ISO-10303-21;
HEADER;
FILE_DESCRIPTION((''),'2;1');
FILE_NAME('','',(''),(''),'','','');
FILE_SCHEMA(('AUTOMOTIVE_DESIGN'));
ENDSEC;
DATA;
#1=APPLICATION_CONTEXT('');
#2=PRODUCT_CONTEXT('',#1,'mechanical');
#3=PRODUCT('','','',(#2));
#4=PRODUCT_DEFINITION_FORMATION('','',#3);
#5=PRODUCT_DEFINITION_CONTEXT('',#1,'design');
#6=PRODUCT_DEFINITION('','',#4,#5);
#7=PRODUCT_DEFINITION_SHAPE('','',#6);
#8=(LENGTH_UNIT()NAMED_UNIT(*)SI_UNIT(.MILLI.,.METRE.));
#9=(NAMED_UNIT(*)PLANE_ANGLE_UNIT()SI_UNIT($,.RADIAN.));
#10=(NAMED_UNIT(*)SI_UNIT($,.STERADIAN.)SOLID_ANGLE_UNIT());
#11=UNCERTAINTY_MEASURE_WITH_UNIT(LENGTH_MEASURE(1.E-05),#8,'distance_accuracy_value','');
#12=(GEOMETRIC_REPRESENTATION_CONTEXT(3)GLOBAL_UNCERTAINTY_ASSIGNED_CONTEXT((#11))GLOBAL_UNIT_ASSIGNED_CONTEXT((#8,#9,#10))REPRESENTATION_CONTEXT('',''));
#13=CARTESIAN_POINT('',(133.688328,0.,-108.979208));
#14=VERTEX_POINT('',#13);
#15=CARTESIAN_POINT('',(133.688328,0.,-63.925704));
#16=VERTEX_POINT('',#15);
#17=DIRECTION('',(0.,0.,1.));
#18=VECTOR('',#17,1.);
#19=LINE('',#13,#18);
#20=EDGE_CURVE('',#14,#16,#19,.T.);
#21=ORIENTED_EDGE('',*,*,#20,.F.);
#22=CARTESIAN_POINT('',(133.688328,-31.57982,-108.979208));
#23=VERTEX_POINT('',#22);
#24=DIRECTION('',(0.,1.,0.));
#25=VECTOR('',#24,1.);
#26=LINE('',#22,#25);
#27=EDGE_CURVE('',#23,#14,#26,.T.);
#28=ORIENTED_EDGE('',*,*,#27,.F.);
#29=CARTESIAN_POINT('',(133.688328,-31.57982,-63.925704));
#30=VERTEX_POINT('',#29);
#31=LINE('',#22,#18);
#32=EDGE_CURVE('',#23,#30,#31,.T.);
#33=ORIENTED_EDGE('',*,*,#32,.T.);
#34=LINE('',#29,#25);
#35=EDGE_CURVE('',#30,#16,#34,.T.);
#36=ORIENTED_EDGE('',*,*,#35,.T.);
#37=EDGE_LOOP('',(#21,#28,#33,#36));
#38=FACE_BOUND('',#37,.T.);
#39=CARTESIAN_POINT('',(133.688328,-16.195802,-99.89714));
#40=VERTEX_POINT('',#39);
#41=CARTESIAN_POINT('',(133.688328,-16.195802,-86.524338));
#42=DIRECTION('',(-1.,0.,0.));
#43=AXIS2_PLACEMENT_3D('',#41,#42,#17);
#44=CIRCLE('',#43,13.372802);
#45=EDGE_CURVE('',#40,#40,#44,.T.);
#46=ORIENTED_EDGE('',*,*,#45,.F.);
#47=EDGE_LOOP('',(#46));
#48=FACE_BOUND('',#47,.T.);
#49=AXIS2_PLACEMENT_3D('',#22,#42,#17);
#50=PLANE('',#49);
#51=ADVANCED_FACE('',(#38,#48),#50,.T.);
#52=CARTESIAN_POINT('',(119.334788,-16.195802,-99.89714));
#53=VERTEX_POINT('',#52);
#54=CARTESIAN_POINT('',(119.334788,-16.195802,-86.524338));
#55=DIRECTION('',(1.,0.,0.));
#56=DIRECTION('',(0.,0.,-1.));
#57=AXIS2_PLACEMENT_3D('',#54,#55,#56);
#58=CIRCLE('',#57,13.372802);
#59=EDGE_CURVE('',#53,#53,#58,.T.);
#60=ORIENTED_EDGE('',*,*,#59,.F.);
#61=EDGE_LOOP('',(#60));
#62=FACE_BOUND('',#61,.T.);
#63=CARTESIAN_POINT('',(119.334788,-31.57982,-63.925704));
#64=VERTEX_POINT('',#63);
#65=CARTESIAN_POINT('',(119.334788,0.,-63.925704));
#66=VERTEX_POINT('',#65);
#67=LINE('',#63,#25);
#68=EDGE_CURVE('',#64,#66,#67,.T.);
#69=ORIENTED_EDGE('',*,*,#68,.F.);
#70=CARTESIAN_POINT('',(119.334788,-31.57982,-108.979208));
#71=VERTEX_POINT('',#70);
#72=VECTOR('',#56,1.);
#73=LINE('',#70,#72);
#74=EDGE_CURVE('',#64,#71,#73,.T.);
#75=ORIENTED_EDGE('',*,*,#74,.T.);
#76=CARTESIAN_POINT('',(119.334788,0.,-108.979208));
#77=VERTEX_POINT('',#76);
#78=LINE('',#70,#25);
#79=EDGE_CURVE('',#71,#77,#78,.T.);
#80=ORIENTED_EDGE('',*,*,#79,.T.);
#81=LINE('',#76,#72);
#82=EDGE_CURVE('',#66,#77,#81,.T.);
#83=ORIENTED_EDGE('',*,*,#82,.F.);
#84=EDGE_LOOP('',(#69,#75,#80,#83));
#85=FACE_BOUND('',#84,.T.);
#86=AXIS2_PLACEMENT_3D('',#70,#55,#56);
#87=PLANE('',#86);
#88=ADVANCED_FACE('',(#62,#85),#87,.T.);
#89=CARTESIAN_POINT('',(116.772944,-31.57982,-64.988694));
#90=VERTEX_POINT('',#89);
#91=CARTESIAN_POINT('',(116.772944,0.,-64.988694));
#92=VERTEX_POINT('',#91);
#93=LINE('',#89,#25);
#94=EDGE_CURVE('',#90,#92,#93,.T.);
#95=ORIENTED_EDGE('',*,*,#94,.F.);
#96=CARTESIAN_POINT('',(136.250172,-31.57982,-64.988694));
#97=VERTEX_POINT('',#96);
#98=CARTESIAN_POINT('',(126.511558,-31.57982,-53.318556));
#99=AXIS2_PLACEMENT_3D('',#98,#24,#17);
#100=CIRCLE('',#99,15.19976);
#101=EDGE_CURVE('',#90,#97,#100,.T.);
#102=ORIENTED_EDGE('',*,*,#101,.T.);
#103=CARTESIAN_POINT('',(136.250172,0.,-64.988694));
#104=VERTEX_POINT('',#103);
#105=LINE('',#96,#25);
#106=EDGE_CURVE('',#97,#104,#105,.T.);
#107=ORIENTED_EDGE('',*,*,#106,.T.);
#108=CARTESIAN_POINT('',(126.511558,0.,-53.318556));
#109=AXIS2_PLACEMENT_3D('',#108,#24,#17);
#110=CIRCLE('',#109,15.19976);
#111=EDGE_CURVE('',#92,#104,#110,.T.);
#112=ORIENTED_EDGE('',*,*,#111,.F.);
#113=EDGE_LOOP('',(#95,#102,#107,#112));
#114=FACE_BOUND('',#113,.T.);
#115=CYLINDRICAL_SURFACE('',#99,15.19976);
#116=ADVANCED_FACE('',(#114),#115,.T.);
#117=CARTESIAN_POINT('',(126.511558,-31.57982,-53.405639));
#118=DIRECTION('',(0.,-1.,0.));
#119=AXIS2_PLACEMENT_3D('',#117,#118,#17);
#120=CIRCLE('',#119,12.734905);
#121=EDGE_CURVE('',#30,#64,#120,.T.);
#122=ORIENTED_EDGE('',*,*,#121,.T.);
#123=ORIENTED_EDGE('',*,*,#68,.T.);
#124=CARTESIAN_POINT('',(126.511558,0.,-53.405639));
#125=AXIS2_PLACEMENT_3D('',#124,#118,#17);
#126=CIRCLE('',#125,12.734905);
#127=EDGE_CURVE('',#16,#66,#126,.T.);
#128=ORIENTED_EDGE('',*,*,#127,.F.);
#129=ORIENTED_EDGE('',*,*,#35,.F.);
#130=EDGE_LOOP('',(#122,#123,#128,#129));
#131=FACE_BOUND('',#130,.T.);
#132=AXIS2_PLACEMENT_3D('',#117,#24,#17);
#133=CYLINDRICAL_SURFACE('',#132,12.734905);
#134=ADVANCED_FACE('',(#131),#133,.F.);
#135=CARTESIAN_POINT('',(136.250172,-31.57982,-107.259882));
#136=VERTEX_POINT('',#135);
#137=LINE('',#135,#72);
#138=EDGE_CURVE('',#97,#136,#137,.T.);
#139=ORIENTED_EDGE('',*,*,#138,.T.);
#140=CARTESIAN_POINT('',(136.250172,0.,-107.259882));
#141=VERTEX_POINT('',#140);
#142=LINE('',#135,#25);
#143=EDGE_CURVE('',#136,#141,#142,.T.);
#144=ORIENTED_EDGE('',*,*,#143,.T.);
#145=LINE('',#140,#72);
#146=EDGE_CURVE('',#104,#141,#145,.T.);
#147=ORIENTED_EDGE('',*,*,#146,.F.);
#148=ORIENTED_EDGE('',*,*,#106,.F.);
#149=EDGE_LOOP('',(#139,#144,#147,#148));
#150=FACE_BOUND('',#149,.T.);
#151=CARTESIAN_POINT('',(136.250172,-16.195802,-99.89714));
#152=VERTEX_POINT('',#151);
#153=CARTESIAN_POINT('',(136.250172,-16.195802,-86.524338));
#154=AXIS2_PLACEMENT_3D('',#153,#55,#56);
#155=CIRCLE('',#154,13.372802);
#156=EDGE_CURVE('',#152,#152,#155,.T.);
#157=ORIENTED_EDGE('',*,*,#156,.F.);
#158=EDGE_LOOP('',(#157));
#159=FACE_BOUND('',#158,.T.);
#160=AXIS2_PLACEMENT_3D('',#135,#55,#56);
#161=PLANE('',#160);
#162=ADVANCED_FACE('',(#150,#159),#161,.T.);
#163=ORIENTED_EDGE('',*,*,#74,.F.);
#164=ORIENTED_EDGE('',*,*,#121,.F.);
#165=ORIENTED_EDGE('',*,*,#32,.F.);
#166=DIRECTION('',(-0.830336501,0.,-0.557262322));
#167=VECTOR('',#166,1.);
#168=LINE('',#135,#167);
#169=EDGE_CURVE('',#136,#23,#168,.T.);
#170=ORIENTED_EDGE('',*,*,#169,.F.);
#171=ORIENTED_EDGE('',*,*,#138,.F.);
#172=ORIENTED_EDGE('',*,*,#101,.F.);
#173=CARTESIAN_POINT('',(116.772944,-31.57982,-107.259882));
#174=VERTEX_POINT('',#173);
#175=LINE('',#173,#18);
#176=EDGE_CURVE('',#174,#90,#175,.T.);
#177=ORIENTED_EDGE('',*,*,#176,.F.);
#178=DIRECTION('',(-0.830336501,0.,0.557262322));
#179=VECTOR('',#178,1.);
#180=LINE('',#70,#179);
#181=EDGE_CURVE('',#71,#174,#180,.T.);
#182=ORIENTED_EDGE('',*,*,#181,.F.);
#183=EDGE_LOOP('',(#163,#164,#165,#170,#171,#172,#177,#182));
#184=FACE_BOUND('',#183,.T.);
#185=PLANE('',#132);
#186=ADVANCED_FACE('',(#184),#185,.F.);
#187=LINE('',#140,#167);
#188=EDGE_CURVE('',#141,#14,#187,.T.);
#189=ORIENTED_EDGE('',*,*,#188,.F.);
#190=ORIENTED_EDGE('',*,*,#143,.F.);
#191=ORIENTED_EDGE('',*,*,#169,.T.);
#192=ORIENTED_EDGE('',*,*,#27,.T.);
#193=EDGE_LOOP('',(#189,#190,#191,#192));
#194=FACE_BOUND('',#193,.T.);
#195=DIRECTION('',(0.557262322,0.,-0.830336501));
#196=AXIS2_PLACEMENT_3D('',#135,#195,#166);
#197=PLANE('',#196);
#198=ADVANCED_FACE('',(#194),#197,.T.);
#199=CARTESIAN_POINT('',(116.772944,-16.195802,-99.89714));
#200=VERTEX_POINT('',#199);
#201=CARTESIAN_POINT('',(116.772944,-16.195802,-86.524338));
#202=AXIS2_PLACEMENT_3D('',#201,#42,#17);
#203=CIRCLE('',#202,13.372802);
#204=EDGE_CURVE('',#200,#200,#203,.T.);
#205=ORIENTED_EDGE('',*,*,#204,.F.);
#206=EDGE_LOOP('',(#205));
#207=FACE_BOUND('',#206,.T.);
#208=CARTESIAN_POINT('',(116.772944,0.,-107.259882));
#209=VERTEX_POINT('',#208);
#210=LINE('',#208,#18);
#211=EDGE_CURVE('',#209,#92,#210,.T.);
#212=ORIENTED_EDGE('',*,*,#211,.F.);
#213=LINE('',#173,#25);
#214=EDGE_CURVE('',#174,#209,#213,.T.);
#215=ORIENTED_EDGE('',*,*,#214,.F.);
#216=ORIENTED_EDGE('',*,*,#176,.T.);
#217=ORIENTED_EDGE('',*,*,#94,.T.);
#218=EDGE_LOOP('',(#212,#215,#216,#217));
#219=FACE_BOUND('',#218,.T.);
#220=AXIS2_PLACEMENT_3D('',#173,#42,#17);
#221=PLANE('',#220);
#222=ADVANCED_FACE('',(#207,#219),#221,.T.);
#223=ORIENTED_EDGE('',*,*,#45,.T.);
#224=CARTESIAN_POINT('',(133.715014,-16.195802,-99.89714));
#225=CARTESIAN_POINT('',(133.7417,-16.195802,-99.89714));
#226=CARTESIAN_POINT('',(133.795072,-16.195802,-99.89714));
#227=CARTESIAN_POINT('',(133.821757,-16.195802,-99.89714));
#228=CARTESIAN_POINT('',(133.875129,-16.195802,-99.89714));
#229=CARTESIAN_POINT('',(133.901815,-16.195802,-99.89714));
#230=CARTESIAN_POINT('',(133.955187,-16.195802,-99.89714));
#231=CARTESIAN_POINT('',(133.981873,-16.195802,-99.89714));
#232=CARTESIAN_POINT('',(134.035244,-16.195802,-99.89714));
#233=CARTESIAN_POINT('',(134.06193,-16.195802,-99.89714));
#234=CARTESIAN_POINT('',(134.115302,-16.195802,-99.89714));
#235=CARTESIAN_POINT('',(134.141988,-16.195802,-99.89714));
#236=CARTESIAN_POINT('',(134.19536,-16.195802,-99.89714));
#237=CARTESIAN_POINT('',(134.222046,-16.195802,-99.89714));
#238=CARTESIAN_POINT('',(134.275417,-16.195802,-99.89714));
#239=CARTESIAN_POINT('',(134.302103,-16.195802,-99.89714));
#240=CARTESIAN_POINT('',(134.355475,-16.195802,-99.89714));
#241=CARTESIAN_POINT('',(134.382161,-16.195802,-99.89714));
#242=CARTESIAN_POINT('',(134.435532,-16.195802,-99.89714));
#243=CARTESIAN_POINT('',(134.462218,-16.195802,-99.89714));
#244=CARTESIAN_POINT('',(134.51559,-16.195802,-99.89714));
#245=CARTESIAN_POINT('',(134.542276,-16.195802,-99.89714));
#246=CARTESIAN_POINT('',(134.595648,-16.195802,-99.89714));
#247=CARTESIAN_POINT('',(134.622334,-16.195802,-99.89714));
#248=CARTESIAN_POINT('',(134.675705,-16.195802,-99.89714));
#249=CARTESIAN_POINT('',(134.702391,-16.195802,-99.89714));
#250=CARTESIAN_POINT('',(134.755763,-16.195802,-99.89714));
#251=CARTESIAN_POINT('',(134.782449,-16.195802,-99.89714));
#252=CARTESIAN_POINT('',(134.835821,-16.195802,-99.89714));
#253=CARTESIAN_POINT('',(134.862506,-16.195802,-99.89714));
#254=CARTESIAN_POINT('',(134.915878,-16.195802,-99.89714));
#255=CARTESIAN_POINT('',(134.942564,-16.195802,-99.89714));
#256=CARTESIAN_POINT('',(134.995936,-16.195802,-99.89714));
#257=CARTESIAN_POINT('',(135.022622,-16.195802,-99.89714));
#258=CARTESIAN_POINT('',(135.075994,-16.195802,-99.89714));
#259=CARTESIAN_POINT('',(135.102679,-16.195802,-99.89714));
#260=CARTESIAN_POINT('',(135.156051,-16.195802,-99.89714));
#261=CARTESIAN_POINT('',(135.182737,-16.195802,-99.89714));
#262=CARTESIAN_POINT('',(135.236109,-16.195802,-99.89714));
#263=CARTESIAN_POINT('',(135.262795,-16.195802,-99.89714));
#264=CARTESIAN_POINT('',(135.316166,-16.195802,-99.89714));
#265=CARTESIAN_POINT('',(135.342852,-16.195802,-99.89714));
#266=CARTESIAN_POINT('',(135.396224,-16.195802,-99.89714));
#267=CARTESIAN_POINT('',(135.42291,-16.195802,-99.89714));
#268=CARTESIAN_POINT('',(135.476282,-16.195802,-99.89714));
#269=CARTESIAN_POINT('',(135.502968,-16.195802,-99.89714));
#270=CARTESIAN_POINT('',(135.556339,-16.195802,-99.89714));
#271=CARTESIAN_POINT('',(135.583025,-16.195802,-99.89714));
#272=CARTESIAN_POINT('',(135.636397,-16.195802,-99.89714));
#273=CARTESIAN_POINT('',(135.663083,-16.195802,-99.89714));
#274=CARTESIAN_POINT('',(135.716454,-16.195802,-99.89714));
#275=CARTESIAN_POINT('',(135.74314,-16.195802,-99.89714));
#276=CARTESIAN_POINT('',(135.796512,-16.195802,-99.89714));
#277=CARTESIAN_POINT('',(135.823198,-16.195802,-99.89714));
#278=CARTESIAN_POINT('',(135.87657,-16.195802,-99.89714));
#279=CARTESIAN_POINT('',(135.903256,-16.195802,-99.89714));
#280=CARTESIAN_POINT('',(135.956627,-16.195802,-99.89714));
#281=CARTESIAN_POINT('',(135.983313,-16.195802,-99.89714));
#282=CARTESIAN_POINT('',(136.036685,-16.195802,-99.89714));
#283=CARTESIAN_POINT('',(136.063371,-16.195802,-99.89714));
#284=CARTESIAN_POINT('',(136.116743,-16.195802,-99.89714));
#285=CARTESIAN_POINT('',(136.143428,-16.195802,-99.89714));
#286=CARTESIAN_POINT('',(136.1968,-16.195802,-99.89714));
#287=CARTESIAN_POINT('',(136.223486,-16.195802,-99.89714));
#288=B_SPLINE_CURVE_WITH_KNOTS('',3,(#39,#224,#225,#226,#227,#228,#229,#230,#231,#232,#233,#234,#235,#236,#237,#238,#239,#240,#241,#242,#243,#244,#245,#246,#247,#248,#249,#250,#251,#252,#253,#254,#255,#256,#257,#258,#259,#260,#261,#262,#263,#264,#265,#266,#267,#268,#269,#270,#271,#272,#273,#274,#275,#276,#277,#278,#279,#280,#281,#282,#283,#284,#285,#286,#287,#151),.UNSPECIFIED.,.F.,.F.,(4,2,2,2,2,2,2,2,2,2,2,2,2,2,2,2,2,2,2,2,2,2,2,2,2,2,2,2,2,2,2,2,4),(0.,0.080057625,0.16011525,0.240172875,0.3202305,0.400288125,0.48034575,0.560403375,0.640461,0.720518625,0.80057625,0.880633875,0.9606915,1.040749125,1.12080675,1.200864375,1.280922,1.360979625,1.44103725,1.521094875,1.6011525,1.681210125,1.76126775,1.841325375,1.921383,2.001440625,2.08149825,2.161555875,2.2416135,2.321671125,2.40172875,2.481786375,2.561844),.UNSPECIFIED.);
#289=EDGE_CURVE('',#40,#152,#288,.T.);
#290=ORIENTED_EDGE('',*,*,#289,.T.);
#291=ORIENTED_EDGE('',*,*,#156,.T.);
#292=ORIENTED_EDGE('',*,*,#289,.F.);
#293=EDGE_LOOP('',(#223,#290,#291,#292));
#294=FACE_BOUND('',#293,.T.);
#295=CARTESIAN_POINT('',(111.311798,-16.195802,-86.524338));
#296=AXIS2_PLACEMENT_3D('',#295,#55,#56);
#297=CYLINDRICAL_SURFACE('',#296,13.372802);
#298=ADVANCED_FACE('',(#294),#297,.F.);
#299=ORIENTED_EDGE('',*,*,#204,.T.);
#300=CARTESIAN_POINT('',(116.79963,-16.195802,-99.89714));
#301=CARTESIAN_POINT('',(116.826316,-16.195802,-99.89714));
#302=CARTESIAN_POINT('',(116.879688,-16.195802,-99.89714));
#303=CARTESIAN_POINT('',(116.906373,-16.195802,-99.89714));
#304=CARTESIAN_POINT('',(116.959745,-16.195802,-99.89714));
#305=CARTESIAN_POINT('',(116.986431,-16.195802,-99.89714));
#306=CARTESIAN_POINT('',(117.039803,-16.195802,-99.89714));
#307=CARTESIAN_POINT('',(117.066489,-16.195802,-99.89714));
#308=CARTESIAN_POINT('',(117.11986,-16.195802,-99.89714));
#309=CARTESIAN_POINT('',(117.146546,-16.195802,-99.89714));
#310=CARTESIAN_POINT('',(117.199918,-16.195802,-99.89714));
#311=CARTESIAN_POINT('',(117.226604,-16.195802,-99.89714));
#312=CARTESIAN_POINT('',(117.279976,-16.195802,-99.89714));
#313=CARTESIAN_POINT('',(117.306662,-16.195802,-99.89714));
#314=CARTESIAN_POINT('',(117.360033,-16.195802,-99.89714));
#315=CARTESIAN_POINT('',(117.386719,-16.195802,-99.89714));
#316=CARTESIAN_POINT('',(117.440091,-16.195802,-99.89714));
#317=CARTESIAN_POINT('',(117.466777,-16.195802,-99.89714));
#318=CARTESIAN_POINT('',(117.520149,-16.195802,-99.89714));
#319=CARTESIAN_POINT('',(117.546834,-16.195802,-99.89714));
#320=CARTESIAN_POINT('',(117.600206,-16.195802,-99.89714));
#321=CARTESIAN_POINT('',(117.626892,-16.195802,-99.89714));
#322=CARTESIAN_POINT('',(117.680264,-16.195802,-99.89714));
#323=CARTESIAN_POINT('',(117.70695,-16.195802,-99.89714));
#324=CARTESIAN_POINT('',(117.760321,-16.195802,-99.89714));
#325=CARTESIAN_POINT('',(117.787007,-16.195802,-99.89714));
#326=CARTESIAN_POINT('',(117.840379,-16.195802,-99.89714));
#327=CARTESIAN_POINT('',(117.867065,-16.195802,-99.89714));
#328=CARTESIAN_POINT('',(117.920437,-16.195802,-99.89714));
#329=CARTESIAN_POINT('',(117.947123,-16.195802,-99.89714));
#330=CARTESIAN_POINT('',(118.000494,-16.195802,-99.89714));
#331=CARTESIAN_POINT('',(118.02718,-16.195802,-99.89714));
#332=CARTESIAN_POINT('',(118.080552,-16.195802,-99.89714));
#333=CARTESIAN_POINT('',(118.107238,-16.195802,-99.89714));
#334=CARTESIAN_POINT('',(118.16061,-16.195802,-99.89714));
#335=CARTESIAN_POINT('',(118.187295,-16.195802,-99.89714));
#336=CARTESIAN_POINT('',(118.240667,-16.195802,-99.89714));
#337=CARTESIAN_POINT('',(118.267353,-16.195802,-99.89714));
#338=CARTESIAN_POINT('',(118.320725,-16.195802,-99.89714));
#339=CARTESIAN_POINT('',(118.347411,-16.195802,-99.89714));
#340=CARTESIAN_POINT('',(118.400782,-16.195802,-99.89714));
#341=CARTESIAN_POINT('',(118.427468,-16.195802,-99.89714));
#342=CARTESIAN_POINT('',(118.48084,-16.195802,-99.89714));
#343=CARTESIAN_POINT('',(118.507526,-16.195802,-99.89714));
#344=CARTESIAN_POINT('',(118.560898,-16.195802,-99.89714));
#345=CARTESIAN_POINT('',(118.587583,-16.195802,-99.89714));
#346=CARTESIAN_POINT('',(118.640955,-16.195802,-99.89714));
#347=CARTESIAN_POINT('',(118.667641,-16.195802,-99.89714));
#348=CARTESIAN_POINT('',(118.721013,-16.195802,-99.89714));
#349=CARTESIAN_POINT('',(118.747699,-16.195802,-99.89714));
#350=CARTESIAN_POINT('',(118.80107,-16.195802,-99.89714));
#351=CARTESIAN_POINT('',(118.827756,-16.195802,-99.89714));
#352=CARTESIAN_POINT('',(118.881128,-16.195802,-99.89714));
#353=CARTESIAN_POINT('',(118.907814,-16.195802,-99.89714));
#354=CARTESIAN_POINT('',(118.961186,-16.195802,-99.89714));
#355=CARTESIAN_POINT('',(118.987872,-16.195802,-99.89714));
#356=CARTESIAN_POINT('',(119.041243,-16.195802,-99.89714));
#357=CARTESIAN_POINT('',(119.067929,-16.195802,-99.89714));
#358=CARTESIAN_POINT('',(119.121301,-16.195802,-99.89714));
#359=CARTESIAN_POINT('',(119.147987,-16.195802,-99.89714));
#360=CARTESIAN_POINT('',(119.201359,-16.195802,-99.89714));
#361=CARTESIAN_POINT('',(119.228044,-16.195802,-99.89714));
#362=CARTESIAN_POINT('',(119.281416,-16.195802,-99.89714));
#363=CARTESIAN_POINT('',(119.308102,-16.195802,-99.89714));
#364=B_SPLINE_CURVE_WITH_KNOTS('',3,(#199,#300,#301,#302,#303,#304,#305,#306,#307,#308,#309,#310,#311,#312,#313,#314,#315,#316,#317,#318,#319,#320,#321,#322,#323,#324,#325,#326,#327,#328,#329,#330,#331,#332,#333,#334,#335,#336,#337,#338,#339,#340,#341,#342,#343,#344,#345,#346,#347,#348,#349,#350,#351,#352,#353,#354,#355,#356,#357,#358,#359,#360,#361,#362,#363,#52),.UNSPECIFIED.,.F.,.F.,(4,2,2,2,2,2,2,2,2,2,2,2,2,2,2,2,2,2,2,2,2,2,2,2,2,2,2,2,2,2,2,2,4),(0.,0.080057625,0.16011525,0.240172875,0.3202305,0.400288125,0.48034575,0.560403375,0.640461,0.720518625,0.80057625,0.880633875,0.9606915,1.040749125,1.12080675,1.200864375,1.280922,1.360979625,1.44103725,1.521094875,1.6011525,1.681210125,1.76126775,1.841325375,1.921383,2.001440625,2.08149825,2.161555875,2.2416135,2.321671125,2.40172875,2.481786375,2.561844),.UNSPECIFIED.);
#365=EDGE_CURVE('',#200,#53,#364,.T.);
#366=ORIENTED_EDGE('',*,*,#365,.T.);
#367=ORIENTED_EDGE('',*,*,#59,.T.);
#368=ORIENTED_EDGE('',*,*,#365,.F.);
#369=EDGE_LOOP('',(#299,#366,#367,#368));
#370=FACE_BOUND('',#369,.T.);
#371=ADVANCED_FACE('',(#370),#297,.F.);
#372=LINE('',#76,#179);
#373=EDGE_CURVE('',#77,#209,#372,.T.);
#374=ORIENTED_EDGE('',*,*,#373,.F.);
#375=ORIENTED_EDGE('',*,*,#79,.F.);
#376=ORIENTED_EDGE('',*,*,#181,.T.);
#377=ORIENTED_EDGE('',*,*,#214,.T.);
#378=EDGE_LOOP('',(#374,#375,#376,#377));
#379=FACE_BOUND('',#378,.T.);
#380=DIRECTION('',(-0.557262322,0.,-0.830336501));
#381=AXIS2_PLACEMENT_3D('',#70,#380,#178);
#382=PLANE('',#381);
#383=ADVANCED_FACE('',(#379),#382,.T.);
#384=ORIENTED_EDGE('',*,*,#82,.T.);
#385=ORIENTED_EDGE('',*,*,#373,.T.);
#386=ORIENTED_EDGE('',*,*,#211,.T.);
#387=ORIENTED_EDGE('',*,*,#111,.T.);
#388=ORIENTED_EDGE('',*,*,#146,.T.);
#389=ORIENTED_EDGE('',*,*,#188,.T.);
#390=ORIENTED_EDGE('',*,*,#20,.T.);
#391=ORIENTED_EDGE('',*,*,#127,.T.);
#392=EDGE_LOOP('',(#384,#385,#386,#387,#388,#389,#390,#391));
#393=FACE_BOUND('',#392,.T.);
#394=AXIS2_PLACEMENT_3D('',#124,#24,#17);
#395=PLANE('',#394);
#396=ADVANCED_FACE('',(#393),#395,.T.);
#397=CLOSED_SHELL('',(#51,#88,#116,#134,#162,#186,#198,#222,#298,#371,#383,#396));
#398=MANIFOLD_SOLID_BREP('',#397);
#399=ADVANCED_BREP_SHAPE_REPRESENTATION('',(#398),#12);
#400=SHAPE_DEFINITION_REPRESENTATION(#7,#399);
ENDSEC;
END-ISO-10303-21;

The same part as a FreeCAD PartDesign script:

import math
import FreeCAD as App
import Part
import Sketcher

doc = App.newDocument("Part")
body = doc.addObject("PartDesign::Body", "Body")

sketch1 = body.newObject("Sketcher::SketchObject", "Sketch")
sketch1.AttachmentSupport = (doc.getObject("XZ_Plane"), [""])
sketch1.MapMode = "FlatFace"
sketch1.addGeometry(Part.LineSegment(App.Vector(136.3, -65, 0), App.Vector(136.3, -107.3, 0)), False)
sketch1.addGeometry(Part.LineSegment(App.Vector(136.3, -107.3, 0), App.Vector(133.7, -109, 0)), False)
sketch1.addGeometry(Part.LineSegment(App.Vector(133.7, -109, 0), App.Vector(133.7, -63.9, 0)), False)
sketch1.addGeometry(Part.ArcOfCircle(Part.Circle(App.Vector(126.5, -53.4, 0), App.Vector(0, 0, 1), 12.7), math.radians(-56), math.radians(236)), False)
sketch1.addGeometry(Part.LineSegment(App.Vector(119.3, -63.9, 0), App.Vector(119.3, -109, 0)), False)
sketch1.addGeometry(Part.LineSegment(App.Vector(119.3, -109, 0), App.Vector(116.8, -107.3, 0)), False)
sketch1.addGeometry(Part.LineSegment(App.Vector(116.8, -107.3, 0), App.Vector(116.8, -65, 0)), False)
sketch1.addGeometry(Part.ArcOfCircle(Part.Circle(App.Vector(126.5, -53.3, 0), App.Vector(0, 0, 1), 15.2), math.radians(-50), math.radians(230)), False)
sketch1.addConstraint(Sketcher.Constraint("Coincident", 0, 2, 1, 1))
sketch1.addConstraint(Sketcher.Constraint("Coincident", 1, 2, 2, 1))
sketch1.addConstraint(Sketcher.Constraint("Coincident", 2, 2, 3, 1))
sketch1.addConstraint(Sketcher.Constraint("Coincident", 3, 2, 4, 1))
sketch1.addConstraint(Sketcher.Constraint("Coincident", 4, 2, 5, 1))
sketch1.addConstraint(Sketcher.Constraint("Coincident", 5, 2, 6, 1))
sketch1.addConstraint(Sketcher.Constraint("Coincident", 6, 2, 7, 2))
sketch1.addConstraint(Sketcher.Constraint("Coincident", 7, 1, 0, 1))
sketch1.addConstraint(Sketcher.Constraint("Vertical", 0))
sketch1.addConstraint(Sketcher.Constraint("Vertical", 2))
sketch1.addConstraint(Sketcher.Constraint("Vertical", 4))
sketch1.addConstraint(Sketcher.Constraint("Vertical", 6))
sketch1.addConstraint(Sketcher.Constraint("Horizontal", 2, 2, 3, 2))
sketch1.addConstraint(Sketcher.Constraint("Horizontal", 1, 2, 4, 2))
sketch1.addConstraint(Sketcher.Constraint("Horizontal", 0, 2, 5, 2))
sketch1.addConstraint(Sketcher.Constraint("Horizontal", 6, 2, 7, 1))
sketch1.addConstraint(Sketcher.Constraint("Vertical", 3, 3, 7, 3))
sketch1.addConstraint(Sketcher.Constraint("Radius", 7, 15.19976))
sketch1.addConstraint(Sketcher.Constraint("Radius", 3, 12.734905))
sketch1.addConstraint(Sketcher.Constraint("DistanceY", 0, 2, 0, 1, 42.271188))
sketch1.addConstraint(Sketcher.Constraint("Distance", 1, 3.085308))
sketch1.addConstraint(Sketcher.Constraint("DistanceY", 2, 1, 2, 2, 45.053504))
sketch1.addConstraint(Sketcher.Constraint("DistanceY", 3, 3, -1, 1, 53.405639))
sketch1.addConstraint(Sketcher.Constraint("DistanceX", -1, 1, 0, 2, 136.250172))
sketch1.addConstraint(Sketcher.Constraint("DistanceX", -1, 1, 1, 2, 133.688328))
sketch1.addConstraint(Sketcher.Constraint("DistanceY", 1, 2, -1, 1, 108.979208))
pad1 = body.newObject("PartDesign::Pad", "Pad")
pad1.Profile = sketch1
pad1.Length = 31.57982

sketch2 = body.newObject("Sketcher::SketchObject", "Sketch001")
sketch2.AttachmentSupport = (doc.getObject("YZ_Plane"), [""])
sketch2.MapMode = "FlatFace"
sketch2.AttachmentOffset = App.Placement(App.Vector(0, 0, 136.250172), App.Rotation())
sketch2.addGeometry(Part.Circle(App.Vector(-16, -87, 0), App.Vector(0, 0, 1), 13), False)
sketch2.addConstraint(Sketcher.Constraint("Diameter", 0, 26.745604))
sketch2.addConstraint(Sketcher.Constraint("DistanceY", 0, 3, -1, 1, 86.524338))
sketch2.addConstraint(Sketcher.Constraint("DistanceX", 0, 3, -1, 1, 16.195802))
pocket1 = body.newObject("PartDesign::Pocket", "Pocket")
pocket1.Profile = sketch2
pocket1.Type = "ThroughAll"

doc.recompute()
